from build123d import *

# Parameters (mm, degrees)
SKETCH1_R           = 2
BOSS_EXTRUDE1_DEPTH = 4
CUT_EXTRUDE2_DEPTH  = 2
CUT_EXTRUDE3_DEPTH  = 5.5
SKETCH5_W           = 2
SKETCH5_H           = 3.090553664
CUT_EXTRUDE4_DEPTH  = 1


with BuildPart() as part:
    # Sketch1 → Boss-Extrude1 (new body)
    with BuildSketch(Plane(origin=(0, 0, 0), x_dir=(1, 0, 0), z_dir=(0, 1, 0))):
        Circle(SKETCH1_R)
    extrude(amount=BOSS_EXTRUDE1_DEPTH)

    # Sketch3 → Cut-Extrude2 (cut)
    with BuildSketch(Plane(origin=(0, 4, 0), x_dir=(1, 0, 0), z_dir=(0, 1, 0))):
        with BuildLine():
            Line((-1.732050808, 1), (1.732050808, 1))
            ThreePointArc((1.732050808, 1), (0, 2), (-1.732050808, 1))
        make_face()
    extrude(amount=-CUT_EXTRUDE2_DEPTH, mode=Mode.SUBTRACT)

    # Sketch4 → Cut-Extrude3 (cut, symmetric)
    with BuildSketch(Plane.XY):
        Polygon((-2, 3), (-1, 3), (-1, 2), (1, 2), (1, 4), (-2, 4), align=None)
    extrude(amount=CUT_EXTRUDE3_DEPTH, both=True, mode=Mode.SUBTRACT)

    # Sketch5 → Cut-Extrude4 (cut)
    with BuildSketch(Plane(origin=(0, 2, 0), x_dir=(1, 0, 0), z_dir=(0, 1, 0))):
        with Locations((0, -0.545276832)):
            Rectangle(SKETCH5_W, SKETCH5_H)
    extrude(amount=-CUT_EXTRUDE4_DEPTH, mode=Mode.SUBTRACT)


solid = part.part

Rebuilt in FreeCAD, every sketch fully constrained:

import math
import FreeCAD as App
import Part
import Sketcher
from FreeCAD import Vector

doc = App.newDocument("Part")
body = doc.addObject("PartDesign::Body", "Body")

# Sketch on XZ plane
sketch1 = doc.addObject("Sketcher::SketchObject", "Sketch")
body.addObject(sketch1)
sketch1.AttachmentSupport = (doc.XZ_Plane, [""])
sketch1.MapMode = "FlatFace"
sketch1.addGeometry(Part.Circle(Vector(0, 0, 0), Vector(0, 0, 1), 2), False)
sketch1.addConstraint(Sketcher.Constraint("Coincident", 0, 3, -1, 1))
sketch1.addConstraint(Sketcher.Constraint("Diameter", 0, 4.0))
pad1 = doc.addObject("PartDesign::Pad", "Pad")
body.addObject(pad1)
pad1.Profile = sketch1
pad1.Length = 4
pad1.Reversed = True

# Sketch on XZ plane
sketch2 = doc.addObject("Sketcher::SketchObject", "Sketch001")
body.addObject(sketch2)
sketch2.AttachmentSupport = (doc.XZ_Plane, [""])
sketch2.MapMode = "FlatFace"
sketch2.AttachmentOffset = App.Placement(Vector(0, 0, -4), App.Rotation())
sketch2.addGeometry(Part.LineSegment(Vector(-1.732051, -1, 0), Vector(1.732051, -1, 0)), False)
sketch2.addGeometry(Part.ArcOfCircle(Part.Circle(Vector(0, 0, 0), Vector(0, 0, 1), 2), math.radians(-150), math.radians(-30)), False)
sketch2.addConstraint(Sketcher.Constraint("Coincident", 0, 1, 1, 1))
sketch2.addConstraint(Sketcher.Constraint("Coincident", 1, 2, 0, 2))
sketch2.addConstraint(Sketcher.Constraint("Horizontal", 0))
sketch2.addConstraint(Sketcher.Constraint("Coincident", 1, 3, -1, 1))
sketch2.addConstraint(Sketcher.Constraint("Radius", 1, 2.0))
sketch2.addConstraint(Sketcher.Constraint("DistanceY", 0, 1, -1, 1, 1.0))
pocket1 = doc.addObject("PartDesign::Pocket", "Pocket")
body.addObject(pocket1)
pocket1.Profile = sketch2
pocket1.Length = 2
pocket1.Reversed = True

# Sketch on XY plane
sketch3 = doc.addObject("Sketcher::SketchObject", "Sketch002")
body.addObject(sketch3)
sketch3.AttachmentSupport = (doc.XY_Plane, [""])
sketch3.MapMode = "FlatFace"
sketch3.addGeometry(Part.LineSegment(Vector(-2, 3, 0), Vector(-1, 3, 0)), False)
sketch3.addGeometry(Part.LineSegment(Vector(-1, 3, 0), Vector(-1, 2, 0)), False)
sketch3.addGeometry(Part.LineSegment(Vector(-1, 2, 0), Vector(1, 2, 0)), False)
sketch3.addGeometry(Part.LineSegment(Vector(1, 2, 0), Vector(1, 4, 0)), False)
sketch3.addGeometry(Part.LineSegment(Vector(1, 4, 0), Vector(-2, 4, 0)), False)
sketch3.addGeometry(Part.LineSegment(Vector(-2, 4, 0), Vector(-2, 3, 0)), False)
sketch3.addConstraint(Sketcher.Constraint("Coincident", 0, 2, 1, 1))
sketch3.addConstraint(Sketcher.Constraint("Coincident", 1, 2, 2, 1))
sketch3.addConstraint(Sketcher.Constraint("Coincident", 2, 2, 3, 1))
sketch3.addConstraint(Sketcher.Constraint("Coincident", 3, 2, 4, 1))
sketch3.addConstraint(Sketcher.Constraint("Coincident", 4, 2, 5, 1))
sketch3.addConstraint(Sketcher.Constraint("Coincident", 5, 2, 0, 1))
sketch3.addConstraint(Sketcher.Constraint("Horizontal", 0))
sketch3.addConstraint(Sketcher.Constraint("Vertical", 1))
sketch3.addConstraint(Sketcher.Constraint("Horizontal", 2))
sketch3.addConstraint(Sketcher.Constraint("Vertical", 3))
sketch3.addConstraint(Sketcher.Constraint("Horizontal", 4))
sketch3.addConstraint(Sketcher.Constraint("Vertical", 5))
sketch3.addConstraint(Sketcher.Constraint("Equal", 0, 1))
sketch3.addConstraint(Sketcher.Constraint("Equal", 2, 3))
sketch3.addConstraint(Sketcher.Constraint("Equal", 1, 5))
sketch3.addConstraint(Sketcher.Constraint("DistanceX", 0, 1, 0, 2, 1.0))
sketch3.addConstraint(Sketcher.Constraint("DistanceX", 0, 2, -1, 1, 1.0))
sketch3.addConstraint(Sketcher.Constraint("DistanceY", -1, 1, 0, 2, 3.0))
pocket2 = doc.addObject("PartDesign::Pocket", "Pocket001")
body.addObject(pocket2)
pocket2.Profile = sketch3
pocket2.Length = 11
pocket2.Midplane = True

# Sketch on XZ plane
sketch4 = doc.addObject("Sketcher::SketchObject", "Sketch003")
body.addObject(sketch4)
sketch4.AttachmentSupport = (doc.XZ_Plane, [""])
sketch4.MapMode = "FlatFace"
sketch4.AttachmentOffset = App.Placement(Vector(0, 0, -2), App.Rotation())
sketch4.addGeometry(Part.LineSegment(Vector(-1, -1, 0), Vector(-1, 2.090554, 0)), False)
sketch4.addGeometry(Part.LineSegment(Vector(-1, 2.090554, 0), Vector(1, 2.090554, 0)), False)
sketch4.addGeometry(Part.LineSegment(Vector(1, 2.090554, 0), Vector(1, -1, 0)), False)
sketch4.addGeometry(Part.LineSegment(Vector(1, -1, 0), Vector(-1, -1, 0)), False)
sketch4.addConstraint(Sketcher.Constraint("Coincident", 0, 2, 1, 1))
sketch4.addConstraint(Sketcher.Constraint("Coincident", 1, 2, 2, 1))
sketch4.addConstraint(Sketcher.Constraint("Coincident", 2, 2, 3, 1))
sketch4.addConstraint(Sketcher.Constraint("Coincident", 3, 2, 0, 1))
sketch4.addConstraint(Sketcher.Constraint("Vertical", 0))
sketch4.addConstraint(Sketcher.Constraint("Horizontal", 1))
sketch4.addConstraint(Sketcher.Constraint("Vertical", 2))
sketch4.addConstraint(Sketcher.Constraint("Horizontal", 3))
sketch4.addConstraint(Sketcher.Constraint("DistanceX", 1, 1, 1, 2, 2.0))
sketch4.addConstraint(Sketcher.Constraint("DistanceX", 0, 2, -1, 1, 1.0))
sketch4.addConstraint(Sketcher.Constraint("DistanceY", 2, 2, -1, 1, 1.0))
sketch4.addConstraint(Sketcher.Constraint("DistanceY", 0, 1, 0, 2, 3.090554))
pocket3 = doc.addObject("PartDesign::Pocket", "Pocket002")
body.addObject(pocket3)
pocket3.Profile = sketch4
pocket3.Length = 1
pocket3.Reversed = True

doc.recompute()
